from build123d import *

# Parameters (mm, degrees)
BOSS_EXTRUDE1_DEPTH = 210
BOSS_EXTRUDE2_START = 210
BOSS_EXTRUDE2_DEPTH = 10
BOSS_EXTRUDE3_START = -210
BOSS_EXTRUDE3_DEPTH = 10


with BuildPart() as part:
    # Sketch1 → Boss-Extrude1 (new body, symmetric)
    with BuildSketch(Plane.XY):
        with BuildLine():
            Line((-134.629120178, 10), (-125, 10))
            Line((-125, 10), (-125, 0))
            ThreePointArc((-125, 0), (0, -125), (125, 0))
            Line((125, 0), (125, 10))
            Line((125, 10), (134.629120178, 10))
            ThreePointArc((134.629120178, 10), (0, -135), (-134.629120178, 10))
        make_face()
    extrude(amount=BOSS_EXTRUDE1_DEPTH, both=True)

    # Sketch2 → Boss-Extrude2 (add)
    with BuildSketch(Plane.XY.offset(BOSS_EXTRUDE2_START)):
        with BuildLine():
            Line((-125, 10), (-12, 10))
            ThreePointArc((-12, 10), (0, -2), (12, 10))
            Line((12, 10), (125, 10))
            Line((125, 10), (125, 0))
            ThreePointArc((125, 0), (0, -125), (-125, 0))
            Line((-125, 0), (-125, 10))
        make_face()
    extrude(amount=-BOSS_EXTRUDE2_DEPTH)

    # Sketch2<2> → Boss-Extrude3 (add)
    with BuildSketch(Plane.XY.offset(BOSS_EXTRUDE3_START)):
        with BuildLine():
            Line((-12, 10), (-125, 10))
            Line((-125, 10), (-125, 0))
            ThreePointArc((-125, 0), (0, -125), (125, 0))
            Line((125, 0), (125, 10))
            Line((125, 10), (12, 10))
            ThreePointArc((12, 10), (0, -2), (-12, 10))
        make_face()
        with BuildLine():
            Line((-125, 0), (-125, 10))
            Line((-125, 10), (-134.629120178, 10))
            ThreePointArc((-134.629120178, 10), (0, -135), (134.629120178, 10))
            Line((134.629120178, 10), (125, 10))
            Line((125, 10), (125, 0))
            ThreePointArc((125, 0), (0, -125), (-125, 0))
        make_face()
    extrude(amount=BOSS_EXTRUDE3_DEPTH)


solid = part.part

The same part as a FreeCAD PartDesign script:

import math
import FreeCAD as App
import Part
import Sketcher
from FreeCAD import Vector
Q = App.Units.Quantity

doc = App.newDocument("Part")
body = doc.addObject("PartDesign::Body", "Body")

sketch1 = body.newObject("Sketcher::SketchObject", "Sketch")
sketch1.AttachmentSupport = (doc.getObject("XY_Plane"), [""])
sketch1.MapMode = "FlatFace"
sketch1.addGeometry([
    Part.LineSegment(Vector(-125, 10, 0), Vector(-135, 10, 0)),
    Part.ArcOfCircle(Part.Circle(Vector(0, 0, 0), Vector(0, 0, 1), 135), math.radians(176), math.radians(364)),
    Part.LineSegment(Vector(135, 10, 0), Vector(125, 10, 0)),
    Part.LineSegment(Vector(125, 10, 0), Vector(125, 0, 0)),
    Part.ArcOfCircle(Part.Circle(Vector(0, 0, 0), Vector(0, 0, 1), 125), math.radians(180), math.radians(360)),
    Part.LineSegment(Vector(-125, 0, 0), Vector(-125, 10, 0)),
], False)
sketch1.addConstraint([
    Sketcher.Constraint("Coincident", 0, 2, 1, 1),
    Sketcher.Constraint("Coincident", 1, 2, 2, 1),
    Sketcher.Constraint("Coincident", 2, 2, 3, 1),
    Sketcher.Constraint("Tangent", 3, 2, 4, 2),
    Sketcher.Constraint("Tangent", 4, 1, 5, 1),
    Sketcher.Constraint("Coincident", 5, 2, 0, 1),
    Sketcher.Constraint("Horizontal", 0),
    Sketcher.Constraint("Horizontal", 2),
    Sketcher.Constraint("Vertical", 3),
    Sketcher.Constraint("Vertical", 5),
    Sketcher.Constraint("Coincident", 1, 3, -1, 1),
    Sketcher.Constraint("Coincident", 4, 3, -1, 1),
    Sketcher.Constraint("Horizontal", 0, 2, 1, 2),
    Sketcher.Constraint("Radius", 1, Q("135 mm")),
    Sketcher.Constraint("Radius", 4, Q("125 mm")),
    Sketcher.Constraint("DistanceY", 3, 2, 3, 1, Q("10 mm")),
])
pad1 = body.newObject("PartDesign::Pad", "Pad")
pad1.Profile = sketch1
pad1.Length = 420
pad1.Midplane = True

sketch2 = body.newObject("Sketcher::SketchObject", "Sketch001")
sketch2.AttachmentSupport = (doc.getObject("XY_Plane"), [""])
sketch2.MapMode = "FlatFace"
sketch2.AttachmentOffset = App.Placement(Vector(0, 0, 210), App.Rotation())
sketch2.addGeometry([
    Part.LineSegment(Vector(-12, 10, 0), Vector(-125, 10, 0)),
    Part.LineSegment(Vector(-125, 10, 0), Vector(-125, 0, 0)),
    Part.ArcOfCircle(Part.Circle(Vector(0, 0, 0), Vector(0, 0, 1), 125), math.radians(180), math.radians(360)),
    Part.LineSegment(Vector(125, 0, 0), Vector(125, 10, 0)),
    Part.LineSegment(Vector(125, 10, 0), Vector(12, 10, 0)),
    Part.ArcOfCircle(Part.Circle(Vector(0, 10, 0), Vector(0, 0, 1), 12), math.radians(180), math.radians(360)),
], False)
sketch2.addConstraint([
    Sketcher.Constraint("Coincident", 0, 2, 1, 1),
    Sketcher.Constraint("Tangent", 1, 2, 2, 1),
    Sketcher.Constraint("Tangent", 2, 2, 3, 1),
    Sketcher.Constraint("Coincident", 3, 2, 4, 1),
    Sketcher.Constraint("Coincident", 4, 2, 5, 2),
    Sketcher.Constraint("Coincident", 5, 1, 0, 1),
    Sketcher.Constraint("Horizontal", 0),
    Sketcher.Constraint("Vertical", 1),
    Sketcher.Constraint("Vertical", 3),
    Sketcher.Constraint("Horizontal", 4),
    Sketcher.Constraint("Coincident", 2, 3, -1, 1),
    Sketcher.Constraint("Symmetric", 4, 2, 5, 1, -2),
    Sketcher.Constraint("Horizontal", 5, 3, 0, 2),
    Sketcher.Constraint("Radius", 2, Q("125 mm")),
    Sketcher.Constraint("Radius", 5, Q("12 mm")),
    Sketcher.Constraint("DistanceY", 1, 2, 1, 1, Q("10 mm")),
])
pad2 = body.newObject("PartDesign::Pad", "Pad001")
pad2.Profile = sketch2
pad2.Length = 10
pad2.Reversed = True

sketch3 = body.newObject("Sketcher::SketchObject", "Sketch002")
sketch3.AttachmentSupport = (doc.getObject("XY_Plane"), [""])
sketch3.MapMode = "FlatFace"
sketch3.AttachmentOffset = App.Placement(Vector(0, 0, -210), App.Rotation())
sketch3.addGeometry([
    Part.LineSegment(Vector(-12, 10, 0), Vector(-135, 10, 0)),
    Part.ArcOfCircle(Part.Circle(Vector(0, 0, 0), Vector(0, 0, 1), 135), math.radians(176), math.radians(364)),
    Part.LineSegment(Vector(135, 10, 0), Vector(12, 10, 0)),
    Part.ArcOfCircle(Part.Circle(Vector(0, 10, 0), Vector(0, 0, 1), 12), math.radians(180), math.radians(360)),
], False)
sketch3.addConstraint([
    Sketcher.Constraint("Coincident", 0, 2, 1, 1),
    Sketcher.Constraint("Coincident", 1, 2, 2, 1),
    Sketcher.Constraint("Coincident", 2, 2, 3, 2),
    Sketcher.Constraint("Coincident", 3, 1, 0, 1),
    Sketcher.Constraint("Horizontal", 0),
    Sketcher.Constraint("Horizontal", 2),
    Sketcher.Constraint("Coincident", 1, 3, -1, 1),
    Sketcher.Constraint("Symmetric", 2, 2, 3, 1, -2),
    Sketcher.Constraint("Horizontal", 3, 3, 0, 2),
    Sketcher.Constraint("Radius", 1, Q("135 mm")),
    Sketcher.Constraint("Radius", 3, Q("12 mm")),
    Sketcher.Constraint("DistanceY", -1, 1, 3, 3, Q("10 mm")),
])
pad3 = body.newObject("PartDesign::Pad", "Pad002")
pad3.Profile = sketch3
pad3.Length = 10

doc.recompute()
